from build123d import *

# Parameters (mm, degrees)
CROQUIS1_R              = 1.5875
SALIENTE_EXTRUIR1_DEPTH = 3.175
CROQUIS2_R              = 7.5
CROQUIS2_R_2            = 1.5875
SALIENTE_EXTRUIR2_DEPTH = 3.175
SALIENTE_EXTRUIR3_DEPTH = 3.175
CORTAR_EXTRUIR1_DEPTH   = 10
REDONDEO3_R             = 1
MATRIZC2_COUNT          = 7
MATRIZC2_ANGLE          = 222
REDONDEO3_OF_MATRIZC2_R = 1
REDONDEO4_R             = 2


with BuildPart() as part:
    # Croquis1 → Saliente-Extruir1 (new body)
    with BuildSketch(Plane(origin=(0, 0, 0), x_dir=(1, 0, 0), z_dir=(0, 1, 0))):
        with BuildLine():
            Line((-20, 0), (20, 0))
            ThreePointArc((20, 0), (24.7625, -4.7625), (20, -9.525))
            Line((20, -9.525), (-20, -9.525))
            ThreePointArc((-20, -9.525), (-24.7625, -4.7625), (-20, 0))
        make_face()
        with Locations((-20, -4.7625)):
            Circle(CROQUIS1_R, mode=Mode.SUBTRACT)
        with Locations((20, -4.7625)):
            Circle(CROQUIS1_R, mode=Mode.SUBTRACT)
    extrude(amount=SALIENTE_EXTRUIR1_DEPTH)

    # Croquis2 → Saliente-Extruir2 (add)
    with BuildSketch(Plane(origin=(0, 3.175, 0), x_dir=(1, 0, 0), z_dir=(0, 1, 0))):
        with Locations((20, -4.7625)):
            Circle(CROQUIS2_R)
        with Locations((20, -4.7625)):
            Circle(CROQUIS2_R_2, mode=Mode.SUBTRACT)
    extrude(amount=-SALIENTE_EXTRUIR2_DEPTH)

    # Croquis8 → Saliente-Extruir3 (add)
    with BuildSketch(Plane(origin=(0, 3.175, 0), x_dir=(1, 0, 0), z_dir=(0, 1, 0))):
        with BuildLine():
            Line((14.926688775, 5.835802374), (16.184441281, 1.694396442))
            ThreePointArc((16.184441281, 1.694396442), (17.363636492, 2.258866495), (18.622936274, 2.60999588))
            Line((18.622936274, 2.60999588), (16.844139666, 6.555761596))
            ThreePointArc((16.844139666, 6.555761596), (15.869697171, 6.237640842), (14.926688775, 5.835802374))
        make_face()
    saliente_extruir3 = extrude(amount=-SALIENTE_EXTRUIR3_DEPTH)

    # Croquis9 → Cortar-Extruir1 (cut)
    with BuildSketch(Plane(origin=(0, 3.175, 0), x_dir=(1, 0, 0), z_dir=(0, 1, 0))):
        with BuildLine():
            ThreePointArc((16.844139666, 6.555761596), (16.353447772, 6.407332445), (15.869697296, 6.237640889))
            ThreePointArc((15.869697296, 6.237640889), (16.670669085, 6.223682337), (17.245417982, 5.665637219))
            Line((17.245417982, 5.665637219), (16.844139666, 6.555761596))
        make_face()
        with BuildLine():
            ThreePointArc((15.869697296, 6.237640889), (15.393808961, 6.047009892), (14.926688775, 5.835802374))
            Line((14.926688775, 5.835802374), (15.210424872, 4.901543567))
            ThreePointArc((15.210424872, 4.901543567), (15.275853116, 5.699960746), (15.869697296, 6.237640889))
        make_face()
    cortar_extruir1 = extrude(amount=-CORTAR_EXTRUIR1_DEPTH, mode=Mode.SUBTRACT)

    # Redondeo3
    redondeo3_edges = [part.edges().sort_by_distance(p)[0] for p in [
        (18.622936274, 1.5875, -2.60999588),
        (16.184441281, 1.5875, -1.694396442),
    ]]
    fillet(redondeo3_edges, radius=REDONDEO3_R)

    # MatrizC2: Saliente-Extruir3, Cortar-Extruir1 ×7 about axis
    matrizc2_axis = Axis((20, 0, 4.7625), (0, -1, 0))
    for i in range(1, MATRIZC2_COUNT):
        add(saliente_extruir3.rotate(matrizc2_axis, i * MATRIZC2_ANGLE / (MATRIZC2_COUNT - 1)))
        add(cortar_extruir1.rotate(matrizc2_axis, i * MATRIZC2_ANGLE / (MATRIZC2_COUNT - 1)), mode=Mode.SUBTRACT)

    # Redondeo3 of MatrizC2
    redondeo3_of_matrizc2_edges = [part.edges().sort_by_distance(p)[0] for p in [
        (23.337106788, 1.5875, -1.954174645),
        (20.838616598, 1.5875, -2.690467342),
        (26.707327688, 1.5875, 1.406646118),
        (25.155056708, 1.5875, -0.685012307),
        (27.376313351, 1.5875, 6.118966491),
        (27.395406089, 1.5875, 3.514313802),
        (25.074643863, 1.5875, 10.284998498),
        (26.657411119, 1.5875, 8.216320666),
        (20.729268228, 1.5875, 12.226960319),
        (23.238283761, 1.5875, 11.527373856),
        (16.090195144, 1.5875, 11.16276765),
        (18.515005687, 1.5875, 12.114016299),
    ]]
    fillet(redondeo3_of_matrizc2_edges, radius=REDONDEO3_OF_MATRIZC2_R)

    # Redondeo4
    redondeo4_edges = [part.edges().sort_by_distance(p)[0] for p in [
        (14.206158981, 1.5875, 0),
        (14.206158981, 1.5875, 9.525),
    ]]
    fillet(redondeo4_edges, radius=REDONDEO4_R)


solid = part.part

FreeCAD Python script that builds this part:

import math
import FreeCAD as App
import Part
import Sketcher
from FreeCAD import Vector


def edges_at(feature, points):
    """Names of the edges that pass closest to the given points."""
    edges = feature.Shape.Edges
    near = lambda p: min(range(len(edges)), key=lambda i: edges[i].distToShape(Part.Vertex(*p))[0])
    return sorted({f"Edge{near(p) + 1}" for p in points})

doc = App.newDocument("Part")
body = doc.addObject("PartDesign::Body", "Body")

sketch1 = body.newObject("Sketcher::SketchObject", "Sketch")
sketch1.AttachmentSupport = (doc.getObject("XZ_Plane"), [""])
sketch1.MapMode = "FlatFace"
sketch1.addGeometry([
    Part.LineSegment(Vector(20, 0, 0), Vector(-20, 0, 0)),
    Part.ArcOfCircle(Part.Circle(Vector(-20, 4.8, 0), Vector(0, 0, 1), 4.8), math.radians(90), math.radians(270)),
    Part.LineSegment(Vector(-20, 9.5, 0), Vector(20, 9.5, 0)),
    Part.ArcOfCircle(Part.Circle(Vector(20, 4.8, 0), Vector(0, 0, 1), 4.8), math.radians(-90), math.radians(90)),
    Part.Circle(Vector(20, 4.8, 0), Vector(0, 0, 1), 1.6),
    Part.Circle(Vector(-20, 4.8, 0), Vector(0, 0, 1), 1.6),
], False)
sketch1.addConstraint([
    Sketcher.Constraint("Tangent", 0, 2, 1, 2),
    Sketcher.Constraint("Tangent", 1, 1, 2, 1),
    Sketcher.Constraint("Tangent", 2, 2, 3, 2),
    Sketcher.Constraint("Tangent", 3, 1, 0, 1),
    Sketcher.Constraint("Horizontal", 0),
    Sketcher.Constraint("Horizontal", 2),
    Sketcher.Constraint("Coincident", 4, 3, 3, 3),
    Sketcher.Constraint("Coincident", 5, 3, 1, 3),
    Sketcher.Constraint("Equal", 4, 5),
    Sketcher.Constraint("Symmetric", 0, 2, 3, 1, -1, 1),
    Sketcher.Constraint("DistanceX", 0, 2, 0, 1, 40.0),
    Sketcher.Constraint("Diameter", 4, 3.175),
    Sketcher.Constraint("Radius", 1, 4.7625),
])
pad1 = body.newObject("PartDesign::Pad", "Pad")
pad1.Profile = sketch1
pad1.Length = 3.175
pad1.Reversed = True

sketch2 = body.newObject("Sketcher::SketchObject", "Sketch001")
sketch2.AttachmentSupport = (doc.getObject("XZ_Plane"), [""])
sketch2.MapMode = "FlatFace"
sketch2.AttachmentOffset = App.Placement(Vector(0, 0, -3.175), App.Rotation())
sketch2.addGeometry([
    Part.Circle(Vector(20, 4.8, 0), Vector(0, 0, 1), 7.5),
    Part.Circle(Vector(20, 4.8, 0), Vector(0, 0, 1), 1.6),
], False)
sketch2.addConstraint([
    Sketcher.Constraint("Coincident", 1, 3, 0, 3),
    Sketcher.Constraint("Diameter", 0, 15.0),
    Sketcher.Constraint("Diameter", 1, 3.175),
    Sketcher.Constraint("DistanceX", -1, 1, 0, 3, 20.0),
    Sketcher.Constraint("DistanceY", -1, 1, 0, 3, 4.7625),
])
pad2 = body.newObject("PartDesign::Pad", "Pad001")
pad2.Profile = sketch2
pad2.Length = 3.175

sketch3 = body.newObject("Sketcher::SketchObject", "Sketch002")
sketch3.AttachmentSupport = (doc.getObject("XZ_Plane"), [""])
sketch3.MapMode = "FlatFace"
sketch3.AttachmentOffset = App.Placement(Vector(0, 0, -3.175), App.Rotation())
sketch3.addGeometry([
    Part.LineSegment(Vector(14.9, -5.8, 0), Vector(16.2, -1.7, 0)),
    Part.ArcOfCircle(Part.Circle(Vector(20, 4.8, 0), Vector(0, 0, 1), 7.5), math.radians(-120.58), math.radians(-100.58)),
    Part.LineSegment(Vector(18.6, -2.6, 0), Vector(16.8, -6.6, 0)),
    Part.ArcOfCircle(Part.Circle(Vector(20, 4.8, 0), Vector(0, 0, 1), 11.7), math.radians(-115.58), math.radians(-105.58)),
], False)
sketch3.addConstraint([
    Sketcher.Constraint("Coincident", 0, 2, 1, 1),
    Sketcher.Constraint("Coincident", 1, 2, 2, 1),
    Sketcher.Constraint("Coincident", 2, 2, 3, 2),
    Sketcher.Constraint("Coincident", 3, 1, 0, 1),
    Sketcher.Constraint("Coincident", 3, 3, 1, 3),
    Sketcher.Constraint("Equal", 0, 2),
    Sketcher.Constraint("Radius", 1, 7.5),
    Sketcher.Constraint("Radius", 3, 11.75),
    Sketcher.Constraint("DistanceX", -1, 1, 1, 3, 20.0),
    Sketcher.Constraint("DistanceY", -1, 1, 1, 3, 4.7625),
    Sketcher.Constraint("DistanceY", 1, 2, 0, 2, 0.915599),
    Sketcher.Constraint("DistanceX", 0, 2, 2, 2, 0.659698),
    Sketcher.Constraint("DistanceX", -1, 1, 0, 2, 16.184441),
])
pad3 = body.newObject("PartDesign::Pad", "Pad002")
pad3.Profile = sketch3
pad3.Length = 3.175

sketch4 = body.newObject("Sketcher::SketchObject", "Sketch003")
sketch4.AttachmentSupport = (doc.getObject("XZ_Plane"), [""])
sketch4.MapMode = "FlatFace"
sketch4.AttachmentOffset = App.Placement(Vector(0, 0, -3.175), App.Rotation())
sketch4.addGeometry([
    Part.ArcOfCircle(Part.Circle(Vector(20, 4.8, 0), Vector(0, 0, 1), 11.8), math.radians(-110.58), math.radians(-105.58)),
    Part.ArcOfCircle(Part.Circle(Vector(16.3, -5.2, 0), Vector(0, 0, 1), 1.1), math.radians(-111), math.radians(-24)),
    Part.LineSegment(Vector(17.2, -5.7, 0), Vector(16.8, -6.6, 0)),
    Part.ArcOfCircle(Part.Circle(Vector(20, 4.8, 0), Vector(0, 0, 1), 11.8), math.radians(-115.58), math.radians(-110.58)),
    Part.LineSegment(Vector(14.9, -5.8, 0), Vector(15.2, -4.9, 0)),
    Part.ArcOfCircle(Part.Circle(Vector(16.3, -5.2, 0), Vector(0, 0, 1), 1.1), math.radians(163), math.radians(249)),
], False)
sketch4.addConstraint([
    Sketcher.Constraint("Tangent", 0, 1, 1, 1),
    Sketcher.Constraint("Tangent", 1, 2, 2, 1),
    Sketcher.Constraint("Coincident", 2, 2, 0, 2),
    Sketcher.Constraint("Coincident", 3, 1, 4, 1),
    Sketcher.Constraint("Tangent", 4, 2, 5, 1),
    Sketcher.Constraint("Tangent", 5, 2, 3, 2),
    Sketcher.Constraint("Coincident", 3, 3, 0, 3),
    Sketcher.Constraint("Coincident", 5, 3, 1, 3),
    Sketcher.Constraint("Equal", 0, 3),
    Sketcher.Constraint("Equal", 2, 4),
    Sketcher.Constraint("Radius", 0, 11.75),
    Sketcher.Constraint("DistanceX", -1, 1, 0, 3, 20.0),
    Sketcher.Constraint("Radius", 1, 1.089111),
    Sketcher.Constraint("DistanceY", -1, 1, 0, 3, 4.7625),
    Sketcher.Constraint("DistanceY", 0, 1, -1, 1, 6.237641),
    Sketcher.Constraint("DistanceX", -1, 1, 2, 2, 16.84414),
])
pocket1 = body.newObject("PartDesign::Pocket", "Pocket")
pocket1.Profile = sketch4
pocket1.Length = 10
pocket1.Reversed = True
doc.recompute()

fillet = body.newObject("PartDesign::Fillet", "Fillet")
fillet.Base = (pocket1, edges_at(pocket1, [(18.623, 1.587, -2.61), (16.184, 1.587, -1.694)]))
fillet.Radius = 1
doc.recompute()

datumline = body.newObject("PartDesign::Line", "DatumLine")
datumline.Placement = App.Placement(Vector(20, 0, 4.7625), App.Rotation(Vector(0, 0, 1), Vector(0, -1, 0)))
polarpattern = body.newObject("PartDesign::PolarPattern", "PolarPattern")
polarpattern.Originals = [pad3, pocket1]
polarpattern.Axis = (datumline, [""])
polarpattern.Angle = 222
polarpattern.Occurrences = 7
body.Tip = polarpattern
doc.recompute()

fillet2 = body.newObject("PartDesign::Fillet", "Fillet001")
fillet2.Base = (polarpattern, edges_at(polarpattern, [
    (23.337, 1.587, -1.954),
    (20.839, 1.587, -2.69),
    (26.707, 1.587, 1.407),
    (25.155, 1.587, -0.685),
    (27.376, 1.587, 6.119),
    (27.395, 1.587, 3.514),
    (25.075, 1.587, 10.285),
    (26.657, 1.587, 8.216),
    (20.729, 1.587, 12.227),
    (23.238, 1.587, 11.527),
    (16.09, 1.587, 11.163),
    (18.515, 1.587, 12.114),
]))
fillet2.Radius = 1
doc.recompute()

fillet3 = body.newObject("PartDesign::Fillet", "Fillet002")
fillet3.Base = (fillet2, edges_at(fillet2, [(14.206, 1.587, 0), (14.206, 1.587, 9.525)]))
fillet3.Radius = 2

doc.recompute()
